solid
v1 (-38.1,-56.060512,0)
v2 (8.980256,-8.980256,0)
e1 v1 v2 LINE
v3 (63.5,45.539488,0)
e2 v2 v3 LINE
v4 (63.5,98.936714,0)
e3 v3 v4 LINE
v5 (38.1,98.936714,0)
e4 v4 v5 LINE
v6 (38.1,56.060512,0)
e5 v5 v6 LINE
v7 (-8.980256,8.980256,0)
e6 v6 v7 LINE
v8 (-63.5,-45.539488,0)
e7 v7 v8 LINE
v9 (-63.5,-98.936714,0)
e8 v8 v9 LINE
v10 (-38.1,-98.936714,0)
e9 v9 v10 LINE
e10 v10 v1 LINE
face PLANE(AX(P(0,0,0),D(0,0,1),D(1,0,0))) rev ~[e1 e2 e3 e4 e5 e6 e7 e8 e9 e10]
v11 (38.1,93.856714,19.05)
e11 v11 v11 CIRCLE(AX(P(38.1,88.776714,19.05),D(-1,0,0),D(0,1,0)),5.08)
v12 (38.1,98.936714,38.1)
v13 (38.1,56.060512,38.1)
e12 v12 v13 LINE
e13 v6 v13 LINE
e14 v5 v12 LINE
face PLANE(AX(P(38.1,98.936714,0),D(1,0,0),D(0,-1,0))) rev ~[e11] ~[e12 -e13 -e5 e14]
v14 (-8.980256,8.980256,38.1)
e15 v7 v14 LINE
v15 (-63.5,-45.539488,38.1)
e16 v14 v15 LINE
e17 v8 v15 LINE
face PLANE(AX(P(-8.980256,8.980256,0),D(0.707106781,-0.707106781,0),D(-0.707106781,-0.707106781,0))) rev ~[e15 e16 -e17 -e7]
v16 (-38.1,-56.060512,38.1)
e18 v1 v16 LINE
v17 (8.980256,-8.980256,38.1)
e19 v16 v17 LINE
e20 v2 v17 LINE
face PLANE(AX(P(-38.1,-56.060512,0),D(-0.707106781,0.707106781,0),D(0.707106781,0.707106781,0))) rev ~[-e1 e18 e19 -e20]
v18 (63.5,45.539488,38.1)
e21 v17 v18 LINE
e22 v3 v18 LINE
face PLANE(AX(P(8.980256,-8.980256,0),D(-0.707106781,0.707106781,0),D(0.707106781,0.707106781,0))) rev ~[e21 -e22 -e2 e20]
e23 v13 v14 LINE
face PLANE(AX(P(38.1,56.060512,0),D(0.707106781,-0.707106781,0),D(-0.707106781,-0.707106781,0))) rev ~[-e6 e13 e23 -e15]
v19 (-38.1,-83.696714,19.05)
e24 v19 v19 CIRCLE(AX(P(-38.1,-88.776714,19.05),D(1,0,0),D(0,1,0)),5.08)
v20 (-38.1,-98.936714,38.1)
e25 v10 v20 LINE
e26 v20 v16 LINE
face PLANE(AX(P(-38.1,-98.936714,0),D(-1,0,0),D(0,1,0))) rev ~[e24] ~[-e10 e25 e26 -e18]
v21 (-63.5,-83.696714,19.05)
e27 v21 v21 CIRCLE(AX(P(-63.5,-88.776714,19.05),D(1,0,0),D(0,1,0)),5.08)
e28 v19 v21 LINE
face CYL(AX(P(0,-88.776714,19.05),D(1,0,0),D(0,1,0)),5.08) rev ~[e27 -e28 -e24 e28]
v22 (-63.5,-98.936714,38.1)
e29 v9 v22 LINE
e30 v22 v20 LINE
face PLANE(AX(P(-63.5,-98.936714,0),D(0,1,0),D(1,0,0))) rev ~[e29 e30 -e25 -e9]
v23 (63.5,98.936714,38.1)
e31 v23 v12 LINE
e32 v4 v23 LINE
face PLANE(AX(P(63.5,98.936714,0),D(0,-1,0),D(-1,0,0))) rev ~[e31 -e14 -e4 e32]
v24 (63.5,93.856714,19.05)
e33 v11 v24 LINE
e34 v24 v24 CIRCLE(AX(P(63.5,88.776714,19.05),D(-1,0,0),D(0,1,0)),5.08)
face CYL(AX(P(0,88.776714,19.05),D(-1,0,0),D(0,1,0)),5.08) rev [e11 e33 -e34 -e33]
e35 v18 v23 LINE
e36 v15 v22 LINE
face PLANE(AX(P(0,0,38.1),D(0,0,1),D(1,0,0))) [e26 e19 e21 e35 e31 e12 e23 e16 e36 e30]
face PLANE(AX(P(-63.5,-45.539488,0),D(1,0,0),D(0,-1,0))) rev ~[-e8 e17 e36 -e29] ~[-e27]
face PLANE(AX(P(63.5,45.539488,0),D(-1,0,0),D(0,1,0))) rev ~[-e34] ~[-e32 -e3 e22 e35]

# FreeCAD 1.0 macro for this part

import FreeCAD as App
import Part
import Sketcher

V = App.Vector
Q = App.Units.Quantity

doc = App.newDocument("Part")
body = doc.addObject("PartDesign::Body", "Body")

sketch1 = body.newObject("Sketcher::SketchObject", "Sketch")
sketch1.AttachmentSupport = (doc.getObject("XY_Plane"), [""])
sketch1.MapMode = "FlatFace"
sketch1.addGeometry([
    Part.LineSegment(V(-8.980256, 8.980256, 0), V(-63.5, -45.539488, 0)),
    Part.LineSegment(V(-63.5, -45.539488, 0), V(-63.5, -98.936714, 0)),
    Part.LineSegment(V(-63.5, -98.936714, 0), V(-38.1, -98.936714, 0)),
    Part.LineSegment(V(-38.1, -98.936714, 0), V(-38.1, -56.060512, 0)),
    Part.LineSegment(V(-38.1, -56.060512, 0), V(8.980256, -8.980256, 0)),
    Part.LineSegment(V(8.980256, -8.980256, 0), V(63.5, 45.539488, 0)),
    Part.LineSegment(V(63.5, 45.539488, 0), V(63.5, 98.936714, 0)),
    Part.LineSegment(V(63.5, 98.936714, 0), V(38.1, 98.936714, 0)),
    Part.LineSegment(V(38.1, 98.936714, 0), V(38.1, 56.060512, 0)),
    Part.LineSegment(V(38.1, 56.060512, 0), V(-8.980256, 8.980256, 0)),
], False)
sketch1.addConstraint([
    Sketcher.Constraint("Coincident", 0, 2, 1, 1),
    Sketcher.Constraint("Coincident", 1, 2, 2, 1),
    Sketcher.Constraint("Coincident", 2, 2, 3, 1),
    Sketcher.Constraint("Coincident", 3, 2, 4, 1),
    Sketcher.Constraint("Coincident", 4, 2, 5, 1),
    Sketcher.Constraint("Coincident", 5, 2, 6, 1),
    Sketcher.Constraint("Coincident", 6, 2, 7, 1),
    Sketcher.Constraint("Coincident", 7, 2, 8, 1),
    Sketcher.Constraint("Coincident", 8, 2, 9, 1),
    Sketcher.Constraint("Coincident", 9, 2, 0, 1),
    Sketcher.Constraint("Vertical", 1),
    Sketcher.Constraint("Horizontal", 2),
    Sketcher.Constraint("Vertical", 3),
    Sketcher.Constraint("Vertical", 6),
    Sketcher.Constraint("Horizontal", 7),
    Sketcher.Constraint("Vertical", 8),
    Sketcher.Constraint("Symmetric", 0, 2, 5, 2, -1, 1),
    Sketcher.Constraint("Symmetric", 2, 2, 7, 2, -1, 1),
    Sketcher.Constraint("Symmetric", 4, 2, 9, 2, -1, 1),
    Sketcher.Constraint("Parallel", 0, 4),
    Sketcher.Constraint("Parallel", 5, 9),
    Sketcher.Constraint("DistanceX", 2, 1, 2, 2, Q("1 in")),
    Sketcher.Constraint("Angle", 0, Q("-135 deg")),
    Sketcher.Constraint("DistanceX", 3, 2, 5, 2, Q("4 in")),
    Sketcher.Constraint("DistanceY", 3, 1, 3, 2, Q("42.876202 mm")),
    Sketcher.Constraint("Distance", 0, Q("77.102561 mm")),
    Sketcher.Constraint("DistanceY", 1, 2, 1, 1, Q("53.397226 mm")),
])
pad1 = body.newObject("PartDesign::Pad", "Pad")
pad1.Profile = sketch1
pad1.Length = Q("1.5 in")

sketch2 = body.newObject("Sketcher::SketchObject", "Sketch001")
sketch2.AttachmentSupport = (doc.getObject("YZ_Plane"), [""])
sketch2.MapMode = "FlatFace"
sketch2.addGeometry([
    Part.Circle(V(88.776714, 19.05, 0), V(0, 0, 1), 5.08),
    Part.Circle(V(-88.776714, 19.05, 0), V(0, 0, 1), 5.08),
], False)
sketch2.addConstraint([
    Sketcher.Constraint("Equal", 0, 1),
    Sketcher.Constraint("Symmetric", 0, 3, 1, 3, -2),
    Sketcher.Constraint("Diameter", 0, Q("0.4 in")),
    Sketcher.Constraint("DistanceY", -1, 1, 0, 3, Q("0.75 in")),
    Sketcher.Constraint("DistanceX", 1, 3, 0, 3, Q("177.553428 mm")),
])
pocket1 = body.newObject("PartDesign::Pocket", "Pocket")
pocket1.Profile = sketch2
pocket1.Type = "ThroughAll"
pocket1.Midplane = True

doc.recompute()
